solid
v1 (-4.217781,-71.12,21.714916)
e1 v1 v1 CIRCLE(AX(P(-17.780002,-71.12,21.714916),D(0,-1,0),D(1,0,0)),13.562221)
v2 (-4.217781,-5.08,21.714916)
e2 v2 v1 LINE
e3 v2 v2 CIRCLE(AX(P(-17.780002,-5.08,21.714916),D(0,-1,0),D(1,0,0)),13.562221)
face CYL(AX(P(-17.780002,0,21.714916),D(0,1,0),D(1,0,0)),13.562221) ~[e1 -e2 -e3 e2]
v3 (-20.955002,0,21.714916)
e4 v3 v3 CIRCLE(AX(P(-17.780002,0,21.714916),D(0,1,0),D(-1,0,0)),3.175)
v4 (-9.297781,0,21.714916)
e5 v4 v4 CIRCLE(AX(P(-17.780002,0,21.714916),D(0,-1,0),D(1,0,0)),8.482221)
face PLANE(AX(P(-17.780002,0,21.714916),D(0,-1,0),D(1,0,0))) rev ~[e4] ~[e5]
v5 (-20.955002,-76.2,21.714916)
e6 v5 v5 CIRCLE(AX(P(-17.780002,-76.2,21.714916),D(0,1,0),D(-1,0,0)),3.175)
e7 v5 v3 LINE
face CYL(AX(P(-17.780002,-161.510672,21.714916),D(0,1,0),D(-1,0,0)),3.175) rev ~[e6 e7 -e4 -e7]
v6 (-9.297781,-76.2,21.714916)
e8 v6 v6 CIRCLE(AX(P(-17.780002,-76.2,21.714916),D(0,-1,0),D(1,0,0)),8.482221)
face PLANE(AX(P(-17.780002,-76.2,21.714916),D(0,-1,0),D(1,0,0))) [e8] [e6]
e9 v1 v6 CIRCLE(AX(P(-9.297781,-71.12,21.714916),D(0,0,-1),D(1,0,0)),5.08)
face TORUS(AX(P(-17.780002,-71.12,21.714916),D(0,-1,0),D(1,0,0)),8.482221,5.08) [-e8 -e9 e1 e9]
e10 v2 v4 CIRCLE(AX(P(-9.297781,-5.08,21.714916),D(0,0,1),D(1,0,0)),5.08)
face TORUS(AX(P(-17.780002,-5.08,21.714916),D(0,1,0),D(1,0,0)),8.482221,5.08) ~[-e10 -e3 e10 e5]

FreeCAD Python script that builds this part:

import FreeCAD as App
import Part
import Sketcher
from FreeCAD import Vector
Q = App.Units.Quantity


def edges_at(feature, points):
    """Names of the edges that pass closest to the given points."""
    edges = feature.Shape.Edges
    near = lambda p: min(range(len(edges)), key=lambda i: edges[i].distToShape(Part.Vertex(*p))[0])
    return sorted({f"Edge{near(p) + 1}" for p in points})

doc = App.newDocument("Part")
params = doc.addObject("Spreadsheet::Sheet", "Params")
for row, (alias, value) in enumerate([
    ("pad1_length", "3 in"),
    ("sketch2_diameter", "0.25 in"),
    ("hole_diameter", "0.25 in"),
    ("fillet_radius", "0.2 in"),
    ("fillet2_radius", "0.2 in"),
], start=1):
    params.set(f"A{row}", alias)
    params.set(f"B{row}", "=" + value)
    params.setAlias(f"B{row}", alias)

body = doc.addObject("PartDesign::Body", "Body")

sketch1 = body.newObject("Sketcher::SketchObject", "Sketch")
sketch1.AttachmentSupport = (doc.getObject("XZ_Plane"), [""])
sketch1.MapMode = "FlatFace"
sketch1.addGeometry(Part.Circle(Vector(-17.780002, 21.714916, 0), Vector(0, 0, 1), 13.562221), False)
sketch1.addConstraint([
    Sketcher.Constraint("DistanceX", 0, 3, -1, 1, Q("0.7000001 in")),
    Sketcher.Constraint("Diameter", 0, Q("27.124442 mm")),
    Sketcher.Constraint("DistanceY", -1, 1, 0, 3, Q("21.714916 mm")),
])
pad1 = body.newObject("PartDesign::Pad", "Pad")
pad1.Profile = sketch1
pad1.setExpression("Length", "Params.pad1_length")

sketch2 = body.newObject("Sketcher::SketchObject", "Sketch001")
sketch2.AttachmentSupport = (doc.getObject("XZ_Plane"), [""])
sketch2.MapMode = "FlatFace"
sketch2.AttachmentOffset = App.Placement(Vector(0, 0, 3 * 25.4), App.Rotation())
sketch2.addGeometry(Part.Circle(Vector(-17.780002, 21.714916, 0), Vector(0, 0, 1), 3.175), False)
sketch2.addConstraint([
    Sketcher.Constraint("Diameter", 0, Q("0.25 in")),
    Sketcher.Constraint("DistanceX", 0, 3, -1, 1, Q("0.7000001 in")),
    Sketcher.Constraint("DistanceY", -1, 1, 0, 3, Q("21.714916 mm")),
])
sketch2.setExpression("Constraints[0]", "Params.sketch2_diameter")
doc.recompute()
hole = body.newObject("PartDesign::Hole", "Hole")
hole.Profile = sketch2
hole.ThreadType = "None"
hole.setExpression("Diameter", "Params.hole_diameter")
hole.DepthType = "ThroughAll"
doc.recompute()

fillet = body.newObject("PartDesign::Fillet", "Fillet")
fillet.Base = (hole, edges_at(hole, [(-31.342, -76.2, 21.715)]))
fillet.setExpression("Radius", "Params.fillet_radius")
doc.recompute()

fillet2 = body.newObject("PartDesign::Fillet", "Fillet001")
fillet2.Base = (fillet, edges_at(fillet, [(-31.342, 0, 21.715)]))
fillet2.setExpression("Radius", "Params.fillet2_radius")

doc.recompute()
